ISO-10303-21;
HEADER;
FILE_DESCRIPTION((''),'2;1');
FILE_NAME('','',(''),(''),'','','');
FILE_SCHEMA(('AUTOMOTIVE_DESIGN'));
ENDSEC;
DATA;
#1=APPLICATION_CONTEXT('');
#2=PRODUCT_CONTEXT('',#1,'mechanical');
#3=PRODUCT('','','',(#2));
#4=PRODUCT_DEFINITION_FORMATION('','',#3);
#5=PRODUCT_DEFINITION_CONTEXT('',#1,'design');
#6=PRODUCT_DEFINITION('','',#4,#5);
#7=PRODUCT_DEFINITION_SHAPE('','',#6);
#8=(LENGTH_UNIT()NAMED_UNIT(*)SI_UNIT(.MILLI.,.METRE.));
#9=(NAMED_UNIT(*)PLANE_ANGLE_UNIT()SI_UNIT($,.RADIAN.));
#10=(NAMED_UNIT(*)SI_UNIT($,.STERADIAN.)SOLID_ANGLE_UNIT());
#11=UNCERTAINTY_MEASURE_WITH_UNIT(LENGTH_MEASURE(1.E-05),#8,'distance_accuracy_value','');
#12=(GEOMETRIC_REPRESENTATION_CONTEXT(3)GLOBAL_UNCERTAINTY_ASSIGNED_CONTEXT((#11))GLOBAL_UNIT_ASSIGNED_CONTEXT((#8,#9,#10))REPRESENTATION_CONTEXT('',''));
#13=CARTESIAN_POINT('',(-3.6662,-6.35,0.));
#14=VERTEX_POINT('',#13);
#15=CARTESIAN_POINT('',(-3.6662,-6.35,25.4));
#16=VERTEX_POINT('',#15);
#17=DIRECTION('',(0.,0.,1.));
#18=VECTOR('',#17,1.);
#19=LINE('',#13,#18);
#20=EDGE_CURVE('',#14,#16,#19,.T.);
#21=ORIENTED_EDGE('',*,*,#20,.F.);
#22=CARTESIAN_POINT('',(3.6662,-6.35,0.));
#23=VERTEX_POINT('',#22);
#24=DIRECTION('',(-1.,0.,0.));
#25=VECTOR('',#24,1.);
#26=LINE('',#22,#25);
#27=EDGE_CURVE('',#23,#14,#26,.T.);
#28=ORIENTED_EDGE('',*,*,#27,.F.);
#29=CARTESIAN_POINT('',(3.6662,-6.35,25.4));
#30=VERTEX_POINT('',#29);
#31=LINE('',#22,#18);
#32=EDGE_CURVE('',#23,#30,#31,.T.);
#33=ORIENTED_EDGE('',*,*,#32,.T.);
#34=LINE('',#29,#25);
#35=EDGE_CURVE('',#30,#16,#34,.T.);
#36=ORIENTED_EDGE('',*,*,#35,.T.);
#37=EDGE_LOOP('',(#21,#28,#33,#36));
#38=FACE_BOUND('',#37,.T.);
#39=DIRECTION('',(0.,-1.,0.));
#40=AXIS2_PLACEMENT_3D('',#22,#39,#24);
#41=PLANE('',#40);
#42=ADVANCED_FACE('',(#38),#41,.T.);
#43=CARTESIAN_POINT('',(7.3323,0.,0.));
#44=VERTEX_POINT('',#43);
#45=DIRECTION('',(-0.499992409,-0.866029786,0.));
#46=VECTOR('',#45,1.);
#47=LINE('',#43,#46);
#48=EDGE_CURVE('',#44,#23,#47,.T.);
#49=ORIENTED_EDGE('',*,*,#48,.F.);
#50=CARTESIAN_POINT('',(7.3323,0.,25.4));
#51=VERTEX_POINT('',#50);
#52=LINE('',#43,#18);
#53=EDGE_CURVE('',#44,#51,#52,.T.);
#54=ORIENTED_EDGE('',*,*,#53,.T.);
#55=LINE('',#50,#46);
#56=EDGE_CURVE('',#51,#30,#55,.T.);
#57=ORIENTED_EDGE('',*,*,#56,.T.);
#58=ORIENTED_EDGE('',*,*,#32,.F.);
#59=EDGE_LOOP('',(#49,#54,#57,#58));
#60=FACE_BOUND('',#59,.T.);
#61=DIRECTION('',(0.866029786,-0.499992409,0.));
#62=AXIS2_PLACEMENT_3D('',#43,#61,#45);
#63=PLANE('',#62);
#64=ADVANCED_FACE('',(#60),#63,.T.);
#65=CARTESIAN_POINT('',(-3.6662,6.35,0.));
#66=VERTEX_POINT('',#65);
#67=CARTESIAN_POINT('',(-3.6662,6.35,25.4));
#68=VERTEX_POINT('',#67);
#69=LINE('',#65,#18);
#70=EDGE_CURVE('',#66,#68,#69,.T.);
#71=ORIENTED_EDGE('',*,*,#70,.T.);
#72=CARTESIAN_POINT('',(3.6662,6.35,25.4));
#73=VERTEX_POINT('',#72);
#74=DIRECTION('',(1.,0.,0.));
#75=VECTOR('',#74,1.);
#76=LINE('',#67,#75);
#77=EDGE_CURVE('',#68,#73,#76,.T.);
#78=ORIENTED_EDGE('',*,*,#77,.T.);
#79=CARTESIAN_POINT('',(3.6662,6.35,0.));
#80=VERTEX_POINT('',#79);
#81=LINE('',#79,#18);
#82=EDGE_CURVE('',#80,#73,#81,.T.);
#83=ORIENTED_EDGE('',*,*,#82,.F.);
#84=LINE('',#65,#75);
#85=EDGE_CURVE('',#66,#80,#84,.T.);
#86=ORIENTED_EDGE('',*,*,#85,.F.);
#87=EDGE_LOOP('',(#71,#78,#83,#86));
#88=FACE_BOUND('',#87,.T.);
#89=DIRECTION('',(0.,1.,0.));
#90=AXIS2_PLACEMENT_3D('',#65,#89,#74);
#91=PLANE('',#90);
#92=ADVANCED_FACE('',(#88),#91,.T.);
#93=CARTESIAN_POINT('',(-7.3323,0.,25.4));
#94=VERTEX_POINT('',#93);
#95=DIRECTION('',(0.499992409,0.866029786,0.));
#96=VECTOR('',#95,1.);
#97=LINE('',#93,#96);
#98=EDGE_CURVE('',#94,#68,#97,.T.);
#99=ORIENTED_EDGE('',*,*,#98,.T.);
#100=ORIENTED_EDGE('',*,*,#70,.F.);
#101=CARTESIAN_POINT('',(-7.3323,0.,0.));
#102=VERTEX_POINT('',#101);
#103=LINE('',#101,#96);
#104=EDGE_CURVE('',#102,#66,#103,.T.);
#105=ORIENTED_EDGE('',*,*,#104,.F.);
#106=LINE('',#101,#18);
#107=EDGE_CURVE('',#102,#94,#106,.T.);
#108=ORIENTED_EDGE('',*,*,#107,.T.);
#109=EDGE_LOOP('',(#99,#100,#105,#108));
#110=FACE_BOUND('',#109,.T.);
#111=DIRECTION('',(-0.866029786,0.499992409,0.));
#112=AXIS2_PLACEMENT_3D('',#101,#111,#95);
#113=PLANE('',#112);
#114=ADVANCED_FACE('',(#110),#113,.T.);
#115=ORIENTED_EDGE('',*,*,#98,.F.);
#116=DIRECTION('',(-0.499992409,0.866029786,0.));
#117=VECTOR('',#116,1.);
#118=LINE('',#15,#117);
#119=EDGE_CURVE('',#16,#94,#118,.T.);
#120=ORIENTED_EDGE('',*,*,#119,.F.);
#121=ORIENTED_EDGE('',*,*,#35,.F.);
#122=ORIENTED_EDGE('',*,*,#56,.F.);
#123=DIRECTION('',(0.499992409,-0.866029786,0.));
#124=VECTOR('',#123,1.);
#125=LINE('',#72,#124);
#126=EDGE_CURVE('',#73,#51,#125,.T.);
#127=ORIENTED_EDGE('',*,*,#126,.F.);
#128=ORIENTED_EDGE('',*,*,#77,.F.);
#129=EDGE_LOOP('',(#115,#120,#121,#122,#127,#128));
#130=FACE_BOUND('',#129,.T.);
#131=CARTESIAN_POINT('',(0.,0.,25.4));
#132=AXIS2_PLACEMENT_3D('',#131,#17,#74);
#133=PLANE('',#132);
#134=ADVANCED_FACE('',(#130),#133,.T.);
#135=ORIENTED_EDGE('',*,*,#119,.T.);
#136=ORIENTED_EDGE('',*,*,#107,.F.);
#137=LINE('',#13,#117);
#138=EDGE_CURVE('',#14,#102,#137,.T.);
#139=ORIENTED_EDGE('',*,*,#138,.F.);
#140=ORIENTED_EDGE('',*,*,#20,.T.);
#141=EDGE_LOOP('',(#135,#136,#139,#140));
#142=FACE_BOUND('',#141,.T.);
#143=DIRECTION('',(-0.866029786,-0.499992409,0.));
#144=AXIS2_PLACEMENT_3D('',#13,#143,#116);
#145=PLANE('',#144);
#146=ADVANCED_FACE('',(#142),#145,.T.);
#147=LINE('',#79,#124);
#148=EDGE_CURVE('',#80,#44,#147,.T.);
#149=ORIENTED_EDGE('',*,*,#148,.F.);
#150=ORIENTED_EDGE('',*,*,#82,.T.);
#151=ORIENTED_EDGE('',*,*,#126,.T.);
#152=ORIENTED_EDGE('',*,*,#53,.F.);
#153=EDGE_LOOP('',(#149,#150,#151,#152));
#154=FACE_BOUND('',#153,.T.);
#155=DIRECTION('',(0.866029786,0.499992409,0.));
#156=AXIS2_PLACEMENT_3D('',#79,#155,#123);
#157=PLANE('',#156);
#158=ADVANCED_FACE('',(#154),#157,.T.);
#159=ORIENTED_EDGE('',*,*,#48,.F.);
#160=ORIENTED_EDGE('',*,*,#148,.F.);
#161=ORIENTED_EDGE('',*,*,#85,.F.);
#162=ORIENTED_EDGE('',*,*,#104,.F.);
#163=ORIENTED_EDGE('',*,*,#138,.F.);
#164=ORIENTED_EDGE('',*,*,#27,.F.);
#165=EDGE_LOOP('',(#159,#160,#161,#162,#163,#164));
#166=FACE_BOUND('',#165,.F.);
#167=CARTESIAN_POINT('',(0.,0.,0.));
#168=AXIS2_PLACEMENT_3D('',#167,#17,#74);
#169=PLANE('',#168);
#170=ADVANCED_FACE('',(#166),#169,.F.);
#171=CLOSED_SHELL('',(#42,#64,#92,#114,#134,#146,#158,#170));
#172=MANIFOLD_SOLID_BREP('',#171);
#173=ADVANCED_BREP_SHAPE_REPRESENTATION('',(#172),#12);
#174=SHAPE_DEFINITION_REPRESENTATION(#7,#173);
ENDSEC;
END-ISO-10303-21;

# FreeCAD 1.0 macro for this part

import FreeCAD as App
import Part
import Sketcher
from FreeCAD import Vector
Q = App.Units.Quantity


def add_polygon(sketch, points):
    """Adds a closed chain of lines whose ends are joined by coincident constraints."""
    first, n = sketch.GeometryCount, len(points)
    for a, b in zip(points, points[1:] + points[:1]):
        sketch.addGeometry(Part.LineSegment(App.Vector(*a, 0), App.Vector(*b, 0)), False)
    for i in range(n):
        sketch.addConstraint(Sketcher.Constraint("Coincident", first + i, 2, first + (i + 1) % n, 1))

doc = App.newDocument("Part")
body = doc.addObject("PartDesign::Body", "Body")

sketch1 = body.newObject("Sketcher::SketchObject", "Sketch")
sketch1.AttachmentSupport = (doc.getObject("XY_Plane"), [""])
sketch1.MapMode = "FlatFace"
add_polygon(sketch1, [(7, 0), (4, 6), (-4, 6), (-7, 0), (-4, -6), (4, -6)])
sketch1.addConstraint(Sketcher.Constraint("Horizontal", 1))
sketch1.addConstraint(Sketcher.Constraint("Horizontal", 4))
sketch1.addConstraint(Sketcher.Constraint("Symmetric", 0, 2, 3, 2, -1, 1))
sketch1.addConstraint(Sketcher.Constraint("Symmetric", 2, 2, 5, 2, -1, 1))
sketch1.addConstraint(Sketcher.Constraint("PointOnObject", 2, 2, -1))
sketch1.addConstraint(Sketcher.Constraint("Parallel", 2, 5))
sketch1.addConstraint(Sketcher.Constraint("Vertical", 1, 2, 3, 2))
sketch1.addConstraint(Sketcher.Constraint("DistanceY", 3, 2, 1, 2, Q("0.5 in")))
sketch1.addConstraint(Sketcher.Constraint("Angle", 0, Q("119.9995 deg")))
sketch1.addConstraint(Sketcher.Constraint("DistanceX", 2, 2, 0, 2, Q("0.433 in")))
pad1 = body.newObject("PartDesign::Pad", "Pad")
pad1.Profile = sketch1
pad1.Length = Q("1 in")

doc.recompute()
